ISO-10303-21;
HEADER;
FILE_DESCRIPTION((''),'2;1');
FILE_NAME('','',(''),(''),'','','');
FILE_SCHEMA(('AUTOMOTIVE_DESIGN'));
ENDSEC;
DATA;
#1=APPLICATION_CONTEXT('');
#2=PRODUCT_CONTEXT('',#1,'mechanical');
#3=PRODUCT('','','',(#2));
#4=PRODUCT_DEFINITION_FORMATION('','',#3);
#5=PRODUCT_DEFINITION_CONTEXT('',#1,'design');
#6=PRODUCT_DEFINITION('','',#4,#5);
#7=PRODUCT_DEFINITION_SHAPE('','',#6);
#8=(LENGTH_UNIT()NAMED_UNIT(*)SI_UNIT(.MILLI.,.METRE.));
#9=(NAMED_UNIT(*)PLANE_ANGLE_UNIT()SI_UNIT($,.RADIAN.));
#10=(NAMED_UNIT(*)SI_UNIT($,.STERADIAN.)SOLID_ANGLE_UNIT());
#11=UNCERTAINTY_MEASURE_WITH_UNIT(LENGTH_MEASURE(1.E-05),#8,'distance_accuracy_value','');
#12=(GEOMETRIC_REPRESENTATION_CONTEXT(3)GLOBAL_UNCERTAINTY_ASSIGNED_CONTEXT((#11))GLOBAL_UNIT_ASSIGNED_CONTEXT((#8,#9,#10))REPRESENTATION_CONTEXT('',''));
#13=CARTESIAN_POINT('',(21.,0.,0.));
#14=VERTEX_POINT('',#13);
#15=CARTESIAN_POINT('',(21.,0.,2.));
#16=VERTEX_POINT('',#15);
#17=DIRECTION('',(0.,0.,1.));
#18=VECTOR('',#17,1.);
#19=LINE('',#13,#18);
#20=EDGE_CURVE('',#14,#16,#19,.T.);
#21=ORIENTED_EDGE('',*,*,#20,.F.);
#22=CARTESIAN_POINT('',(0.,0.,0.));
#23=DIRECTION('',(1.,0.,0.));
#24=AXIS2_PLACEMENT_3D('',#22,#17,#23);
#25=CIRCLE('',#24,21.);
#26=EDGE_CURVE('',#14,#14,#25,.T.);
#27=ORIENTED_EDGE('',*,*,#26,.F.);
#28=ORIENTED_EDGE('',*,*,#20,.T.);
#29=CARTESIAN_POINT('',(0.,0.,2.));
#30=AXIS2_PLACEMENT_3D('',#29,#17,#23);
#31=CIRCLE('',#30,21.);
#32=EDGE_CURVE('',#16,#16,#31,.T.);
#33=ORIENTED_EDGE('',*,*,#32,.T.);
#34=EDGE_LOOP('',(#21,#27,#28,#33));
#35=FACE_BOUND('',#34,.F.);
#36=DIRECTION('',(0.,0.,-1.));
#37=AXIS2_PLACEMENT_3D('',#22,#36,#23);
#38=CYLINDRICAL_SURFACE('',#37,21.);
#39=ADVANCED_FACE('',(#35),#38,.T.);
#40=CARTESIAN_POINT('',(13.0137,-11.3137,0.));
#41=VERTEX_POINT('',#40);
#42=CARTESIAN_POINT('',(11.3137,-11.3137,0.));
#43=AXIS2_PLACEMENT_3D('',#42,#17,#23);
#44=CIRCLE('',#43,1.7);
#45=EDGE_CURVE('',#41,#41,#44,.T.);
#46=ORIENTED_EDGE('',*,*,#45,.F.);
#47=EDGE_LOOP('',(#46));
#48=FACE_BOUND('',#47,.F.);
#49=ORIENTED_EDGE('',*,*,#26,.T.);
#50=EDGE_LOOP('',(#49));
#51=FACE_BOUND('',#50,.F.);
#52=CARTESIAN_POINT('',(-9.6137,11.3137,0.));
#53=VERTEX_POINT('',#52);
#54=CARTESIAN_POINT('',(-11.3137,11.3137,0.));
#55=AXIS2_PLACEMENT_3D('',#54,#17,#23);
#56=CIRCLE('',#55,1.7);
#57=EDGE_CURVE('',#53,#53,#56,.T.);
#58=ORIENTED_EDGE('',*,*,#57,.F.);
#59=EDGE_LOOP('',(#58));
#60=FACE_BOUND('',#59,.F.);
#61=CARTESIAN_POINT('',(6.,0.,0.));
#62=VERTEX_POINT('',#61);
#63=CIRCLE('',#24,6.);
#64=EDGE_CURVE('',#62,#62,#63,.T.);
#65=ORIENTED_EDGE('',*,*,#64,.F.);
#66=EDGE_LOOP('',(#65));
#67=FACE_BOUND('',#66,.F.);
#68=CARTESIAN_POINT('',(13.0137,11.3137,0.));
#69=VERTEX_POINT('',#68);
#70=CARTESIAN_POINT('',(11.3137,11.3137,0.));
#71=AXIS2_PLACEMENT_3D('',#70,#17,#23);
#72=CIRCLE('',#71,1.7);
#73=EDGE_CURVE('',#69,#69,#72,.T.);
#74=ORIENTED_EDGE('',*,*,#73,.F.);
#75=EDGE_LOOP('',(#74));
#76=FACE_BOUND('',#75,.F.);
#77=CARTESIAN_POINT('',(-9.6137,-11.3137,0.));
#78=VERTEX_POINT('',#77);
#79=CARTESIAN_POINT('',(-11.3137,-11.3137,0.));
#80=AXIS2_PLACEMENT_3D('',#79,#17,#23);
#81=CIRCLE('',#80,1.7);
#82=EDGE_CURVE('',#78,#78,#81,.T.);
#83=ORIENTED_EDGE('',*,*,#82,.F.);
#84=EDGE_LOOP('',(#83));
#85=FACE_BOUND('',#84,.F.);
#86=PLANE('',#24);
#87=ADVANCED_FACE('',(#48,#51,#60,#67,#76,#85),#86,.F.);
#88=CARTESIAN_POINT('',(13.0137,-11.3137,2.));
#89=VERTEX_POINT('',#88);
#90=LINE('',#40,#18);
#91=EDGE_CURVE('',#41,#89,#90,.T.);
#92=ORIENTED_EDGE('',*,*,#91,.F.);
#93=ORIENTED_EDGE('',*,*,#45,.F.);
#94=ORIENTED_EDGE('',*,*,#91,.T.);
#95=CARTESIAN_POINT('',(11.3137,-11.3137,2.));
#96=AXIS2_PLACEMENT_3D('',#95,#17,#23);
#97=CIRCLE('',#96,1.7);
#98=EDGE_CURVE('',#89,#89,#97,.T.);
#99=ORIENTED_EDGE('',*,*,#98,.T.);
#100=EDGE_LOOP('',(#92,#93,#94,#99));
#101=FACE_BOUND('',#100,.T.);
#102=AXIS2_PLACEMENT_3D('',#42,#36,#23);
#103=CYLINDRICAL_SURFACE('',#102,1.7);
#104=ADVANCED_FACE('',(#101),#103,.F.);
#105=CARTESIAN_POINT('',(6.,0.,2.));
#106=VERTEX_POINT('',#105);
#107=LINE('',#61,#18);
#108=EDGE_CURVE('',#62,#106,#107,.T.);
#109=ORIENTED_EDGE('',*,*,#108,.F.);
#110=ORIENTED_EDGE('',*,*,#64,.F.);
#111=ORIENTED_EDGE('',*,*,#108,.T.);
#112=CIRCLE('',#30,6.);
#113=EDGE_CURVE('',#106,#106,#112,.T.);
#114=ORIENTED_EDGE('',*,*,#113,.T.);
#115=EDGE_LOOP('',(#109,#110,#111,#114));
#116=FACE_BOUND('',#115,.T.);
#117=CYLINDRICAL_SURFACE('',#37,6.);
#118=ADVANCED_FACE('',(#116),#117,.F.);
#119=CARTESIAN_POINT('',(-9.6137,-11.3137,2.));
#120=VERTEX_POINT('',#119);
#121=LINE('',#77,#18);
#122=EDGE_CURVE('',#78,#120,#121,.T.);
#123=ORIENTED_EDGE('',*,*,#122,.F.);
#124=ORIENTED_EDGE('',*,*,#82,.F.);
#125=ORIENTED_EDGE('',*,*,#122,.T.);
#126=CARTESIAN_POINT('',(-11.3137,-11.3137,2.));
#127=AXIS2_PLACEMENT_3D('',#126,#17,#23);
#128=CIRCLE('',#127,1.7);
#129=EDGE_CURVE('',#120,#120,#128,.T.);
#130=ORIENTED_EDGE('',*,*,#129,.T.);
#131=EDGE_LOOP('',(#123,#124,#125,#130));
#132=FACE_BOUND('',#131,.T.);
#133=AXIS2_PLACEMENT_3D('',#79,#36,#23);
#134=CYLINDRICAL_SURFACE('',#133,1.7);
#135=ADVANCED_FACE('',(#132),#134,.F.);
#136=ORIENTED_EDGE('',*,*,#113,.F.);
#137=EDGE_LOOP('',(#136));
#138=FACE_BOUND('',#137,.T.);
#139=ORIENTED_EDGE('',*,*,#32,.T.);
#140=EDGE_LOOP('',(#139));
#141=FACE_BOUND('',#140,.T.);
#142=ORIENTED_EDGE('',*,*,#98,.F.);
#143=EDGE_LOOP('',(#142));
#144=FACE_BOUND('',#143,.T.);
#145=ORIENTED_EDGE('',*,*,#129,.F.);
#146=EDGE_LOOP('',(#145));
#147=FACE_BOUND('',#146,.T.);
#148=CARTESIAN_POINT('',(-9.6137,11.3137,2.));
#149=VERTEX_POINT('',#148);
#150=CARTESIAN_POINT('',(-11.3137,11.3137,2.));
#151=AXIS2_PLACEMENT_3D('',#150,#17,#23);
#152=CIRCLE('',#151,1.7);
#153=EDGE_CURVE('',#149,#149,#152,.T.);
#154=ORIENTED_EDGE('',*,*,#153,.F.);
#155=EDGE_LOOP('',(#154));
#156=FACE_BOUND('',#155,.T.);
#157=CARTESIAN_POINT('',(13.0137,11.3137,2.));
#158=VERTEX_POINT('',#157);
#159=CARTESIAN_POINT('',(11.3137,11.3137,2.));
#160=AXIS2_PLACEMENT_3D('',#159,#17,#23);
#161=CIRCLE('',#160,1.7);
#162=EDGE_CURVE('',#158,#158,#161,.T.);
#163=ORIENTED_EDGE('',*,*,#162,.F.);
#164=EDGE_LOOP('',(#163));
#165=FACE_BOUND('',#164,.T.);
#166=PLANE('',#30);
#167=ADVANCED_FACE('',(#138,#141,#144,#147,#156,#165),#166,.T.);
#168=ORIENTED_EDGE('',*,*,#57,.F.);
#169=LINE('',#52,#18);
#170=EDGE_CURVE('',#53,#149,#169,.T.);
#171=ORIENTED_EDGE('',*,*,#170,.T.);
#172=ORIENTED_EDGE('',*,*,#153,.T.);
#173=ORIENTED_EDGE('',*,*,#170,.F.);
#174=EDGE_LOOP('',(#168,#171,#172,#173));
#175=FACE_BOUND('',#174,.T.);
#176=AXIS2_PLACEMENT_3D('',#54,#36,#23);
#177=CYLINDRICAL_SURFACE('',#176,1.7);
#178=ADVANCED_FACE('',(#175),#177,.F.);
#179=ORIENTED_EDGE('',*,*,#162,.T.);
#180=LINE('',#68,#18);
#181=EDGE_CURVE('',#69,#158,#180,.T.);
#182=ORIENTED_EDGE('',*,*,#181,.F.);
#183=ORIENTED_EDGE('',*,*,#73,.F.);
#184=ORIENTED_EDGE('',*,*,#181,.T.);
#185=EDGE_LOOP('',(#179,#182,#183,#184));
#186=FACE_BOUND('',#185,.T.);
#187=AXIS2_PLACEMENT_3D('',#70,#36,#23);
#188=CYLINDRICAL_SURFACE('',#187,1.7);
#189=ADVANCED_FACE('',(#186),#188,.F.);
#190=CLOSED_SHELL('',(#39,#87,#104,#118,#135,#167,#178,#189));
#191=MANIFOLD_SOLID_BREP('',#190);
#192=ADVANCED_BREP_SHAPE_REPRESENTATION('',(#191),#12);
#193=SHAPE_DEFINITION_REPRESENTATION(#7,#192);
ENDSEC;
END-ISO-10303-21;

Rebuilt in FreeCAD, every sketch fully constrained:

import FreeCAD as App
import Part
import Sketcher

V = App.Vector

doc = App.newDocument("Part")
params = doc.addObject("Spreadsheet::Sheet", "Params")
for row, (alias, value) in enumerate([
    ("sketch1_diameter", "42 mm"),
    ("sketch1_diameter2", "12 mm"),
    ("sketch1_diameter3", "3.4 mm"),
    ("pad1_length", "2 mm"),
], start=1):
    params.set(f"A{row}", alias)
    params.set(f"B{row}", "=" + value)
    params.setAlias(f"B{row}", alias)

body = doc.addObject("PartDesign::Body", "Body")

# Sketch on XY plane
sketch1 = body.newObject("Sketcher::SketchObject", "Sketch")
sketch1.AttachmentSupport = (doc.getObject("XY_Plane"), [""])
sketch1.MapMode = "FlatFace"
sketch1.addGeometry([
    Part.Circle(V(0, 0, 0), V(0, 0, 1), 21),  # 0
    Part.Circle(V(-11.3, -11.3, 0), V(0, 0, 1), 1.7),  # 1
    Part.Circle(V(11.3, -11.3, 0), V(0, 0, 1), 1.7),  # 2
    Part.Circle(V(-11.3, 11.3, 0), V(0, 0, 1), 1.7),  # 3
    Part.Circle(V(0, 0, 0), V(0, 0, 1), 6),  # 4
    Part.Circle(V(11.3, 11.3, 0), V(0, 0, 1), 1.7),  # 5
], False)
sketch1.addConstraint([
    Sketcher.Constraint("Coincident", 0, 3, -1, 1),
    Sketcher.Constraint("Coincident", 4, 3, -1, 1),
    Sketcher.Constraint("Equal", 1, 2),
    Sketcher.Constraint("Equal", 2, 3),
    Sketcher.Constraint("Equal", 3, 5),
    Sketcher.Constraint("Symmetric", 2, 3, 3, 3, -1, 1),
    Sketcher.Constraint("Symmetric", 1, 3, 5, 3, -1, 1),
    Sketcher.Constraint("Symmetric", 1, 3, 2, 3, -2),
    Sketcher.Constraint("Diameter", 0, 42.0),
    Sketcher.Constraint("Diameter", 4, 12.0),
    Sketcher.Constraint("Diameter", 1, 3.4),
    Sketcher.Constraint("DistanceX", 1, 3, -1, 1, 11.3137),
    Sketcher.Constraint("DistanceY", 1, 3, -1, 1, 11.3137),
])
sketch1.setExpression("Constraints[8]", "Params.sketch1_diameter")
sketch1.setExpression("Constraints[9]", "Params.sketch1_diameter2")
sketch1.setExpression("Constraints[10]", "Params.sketch1_diameter3")
pad1 = body.newObject("PartDesign::Pad", "Pad")
pad1.Profile = sketch1
pad1.setExpression("Length", "Params.pad1_length")

doc.recompute()
